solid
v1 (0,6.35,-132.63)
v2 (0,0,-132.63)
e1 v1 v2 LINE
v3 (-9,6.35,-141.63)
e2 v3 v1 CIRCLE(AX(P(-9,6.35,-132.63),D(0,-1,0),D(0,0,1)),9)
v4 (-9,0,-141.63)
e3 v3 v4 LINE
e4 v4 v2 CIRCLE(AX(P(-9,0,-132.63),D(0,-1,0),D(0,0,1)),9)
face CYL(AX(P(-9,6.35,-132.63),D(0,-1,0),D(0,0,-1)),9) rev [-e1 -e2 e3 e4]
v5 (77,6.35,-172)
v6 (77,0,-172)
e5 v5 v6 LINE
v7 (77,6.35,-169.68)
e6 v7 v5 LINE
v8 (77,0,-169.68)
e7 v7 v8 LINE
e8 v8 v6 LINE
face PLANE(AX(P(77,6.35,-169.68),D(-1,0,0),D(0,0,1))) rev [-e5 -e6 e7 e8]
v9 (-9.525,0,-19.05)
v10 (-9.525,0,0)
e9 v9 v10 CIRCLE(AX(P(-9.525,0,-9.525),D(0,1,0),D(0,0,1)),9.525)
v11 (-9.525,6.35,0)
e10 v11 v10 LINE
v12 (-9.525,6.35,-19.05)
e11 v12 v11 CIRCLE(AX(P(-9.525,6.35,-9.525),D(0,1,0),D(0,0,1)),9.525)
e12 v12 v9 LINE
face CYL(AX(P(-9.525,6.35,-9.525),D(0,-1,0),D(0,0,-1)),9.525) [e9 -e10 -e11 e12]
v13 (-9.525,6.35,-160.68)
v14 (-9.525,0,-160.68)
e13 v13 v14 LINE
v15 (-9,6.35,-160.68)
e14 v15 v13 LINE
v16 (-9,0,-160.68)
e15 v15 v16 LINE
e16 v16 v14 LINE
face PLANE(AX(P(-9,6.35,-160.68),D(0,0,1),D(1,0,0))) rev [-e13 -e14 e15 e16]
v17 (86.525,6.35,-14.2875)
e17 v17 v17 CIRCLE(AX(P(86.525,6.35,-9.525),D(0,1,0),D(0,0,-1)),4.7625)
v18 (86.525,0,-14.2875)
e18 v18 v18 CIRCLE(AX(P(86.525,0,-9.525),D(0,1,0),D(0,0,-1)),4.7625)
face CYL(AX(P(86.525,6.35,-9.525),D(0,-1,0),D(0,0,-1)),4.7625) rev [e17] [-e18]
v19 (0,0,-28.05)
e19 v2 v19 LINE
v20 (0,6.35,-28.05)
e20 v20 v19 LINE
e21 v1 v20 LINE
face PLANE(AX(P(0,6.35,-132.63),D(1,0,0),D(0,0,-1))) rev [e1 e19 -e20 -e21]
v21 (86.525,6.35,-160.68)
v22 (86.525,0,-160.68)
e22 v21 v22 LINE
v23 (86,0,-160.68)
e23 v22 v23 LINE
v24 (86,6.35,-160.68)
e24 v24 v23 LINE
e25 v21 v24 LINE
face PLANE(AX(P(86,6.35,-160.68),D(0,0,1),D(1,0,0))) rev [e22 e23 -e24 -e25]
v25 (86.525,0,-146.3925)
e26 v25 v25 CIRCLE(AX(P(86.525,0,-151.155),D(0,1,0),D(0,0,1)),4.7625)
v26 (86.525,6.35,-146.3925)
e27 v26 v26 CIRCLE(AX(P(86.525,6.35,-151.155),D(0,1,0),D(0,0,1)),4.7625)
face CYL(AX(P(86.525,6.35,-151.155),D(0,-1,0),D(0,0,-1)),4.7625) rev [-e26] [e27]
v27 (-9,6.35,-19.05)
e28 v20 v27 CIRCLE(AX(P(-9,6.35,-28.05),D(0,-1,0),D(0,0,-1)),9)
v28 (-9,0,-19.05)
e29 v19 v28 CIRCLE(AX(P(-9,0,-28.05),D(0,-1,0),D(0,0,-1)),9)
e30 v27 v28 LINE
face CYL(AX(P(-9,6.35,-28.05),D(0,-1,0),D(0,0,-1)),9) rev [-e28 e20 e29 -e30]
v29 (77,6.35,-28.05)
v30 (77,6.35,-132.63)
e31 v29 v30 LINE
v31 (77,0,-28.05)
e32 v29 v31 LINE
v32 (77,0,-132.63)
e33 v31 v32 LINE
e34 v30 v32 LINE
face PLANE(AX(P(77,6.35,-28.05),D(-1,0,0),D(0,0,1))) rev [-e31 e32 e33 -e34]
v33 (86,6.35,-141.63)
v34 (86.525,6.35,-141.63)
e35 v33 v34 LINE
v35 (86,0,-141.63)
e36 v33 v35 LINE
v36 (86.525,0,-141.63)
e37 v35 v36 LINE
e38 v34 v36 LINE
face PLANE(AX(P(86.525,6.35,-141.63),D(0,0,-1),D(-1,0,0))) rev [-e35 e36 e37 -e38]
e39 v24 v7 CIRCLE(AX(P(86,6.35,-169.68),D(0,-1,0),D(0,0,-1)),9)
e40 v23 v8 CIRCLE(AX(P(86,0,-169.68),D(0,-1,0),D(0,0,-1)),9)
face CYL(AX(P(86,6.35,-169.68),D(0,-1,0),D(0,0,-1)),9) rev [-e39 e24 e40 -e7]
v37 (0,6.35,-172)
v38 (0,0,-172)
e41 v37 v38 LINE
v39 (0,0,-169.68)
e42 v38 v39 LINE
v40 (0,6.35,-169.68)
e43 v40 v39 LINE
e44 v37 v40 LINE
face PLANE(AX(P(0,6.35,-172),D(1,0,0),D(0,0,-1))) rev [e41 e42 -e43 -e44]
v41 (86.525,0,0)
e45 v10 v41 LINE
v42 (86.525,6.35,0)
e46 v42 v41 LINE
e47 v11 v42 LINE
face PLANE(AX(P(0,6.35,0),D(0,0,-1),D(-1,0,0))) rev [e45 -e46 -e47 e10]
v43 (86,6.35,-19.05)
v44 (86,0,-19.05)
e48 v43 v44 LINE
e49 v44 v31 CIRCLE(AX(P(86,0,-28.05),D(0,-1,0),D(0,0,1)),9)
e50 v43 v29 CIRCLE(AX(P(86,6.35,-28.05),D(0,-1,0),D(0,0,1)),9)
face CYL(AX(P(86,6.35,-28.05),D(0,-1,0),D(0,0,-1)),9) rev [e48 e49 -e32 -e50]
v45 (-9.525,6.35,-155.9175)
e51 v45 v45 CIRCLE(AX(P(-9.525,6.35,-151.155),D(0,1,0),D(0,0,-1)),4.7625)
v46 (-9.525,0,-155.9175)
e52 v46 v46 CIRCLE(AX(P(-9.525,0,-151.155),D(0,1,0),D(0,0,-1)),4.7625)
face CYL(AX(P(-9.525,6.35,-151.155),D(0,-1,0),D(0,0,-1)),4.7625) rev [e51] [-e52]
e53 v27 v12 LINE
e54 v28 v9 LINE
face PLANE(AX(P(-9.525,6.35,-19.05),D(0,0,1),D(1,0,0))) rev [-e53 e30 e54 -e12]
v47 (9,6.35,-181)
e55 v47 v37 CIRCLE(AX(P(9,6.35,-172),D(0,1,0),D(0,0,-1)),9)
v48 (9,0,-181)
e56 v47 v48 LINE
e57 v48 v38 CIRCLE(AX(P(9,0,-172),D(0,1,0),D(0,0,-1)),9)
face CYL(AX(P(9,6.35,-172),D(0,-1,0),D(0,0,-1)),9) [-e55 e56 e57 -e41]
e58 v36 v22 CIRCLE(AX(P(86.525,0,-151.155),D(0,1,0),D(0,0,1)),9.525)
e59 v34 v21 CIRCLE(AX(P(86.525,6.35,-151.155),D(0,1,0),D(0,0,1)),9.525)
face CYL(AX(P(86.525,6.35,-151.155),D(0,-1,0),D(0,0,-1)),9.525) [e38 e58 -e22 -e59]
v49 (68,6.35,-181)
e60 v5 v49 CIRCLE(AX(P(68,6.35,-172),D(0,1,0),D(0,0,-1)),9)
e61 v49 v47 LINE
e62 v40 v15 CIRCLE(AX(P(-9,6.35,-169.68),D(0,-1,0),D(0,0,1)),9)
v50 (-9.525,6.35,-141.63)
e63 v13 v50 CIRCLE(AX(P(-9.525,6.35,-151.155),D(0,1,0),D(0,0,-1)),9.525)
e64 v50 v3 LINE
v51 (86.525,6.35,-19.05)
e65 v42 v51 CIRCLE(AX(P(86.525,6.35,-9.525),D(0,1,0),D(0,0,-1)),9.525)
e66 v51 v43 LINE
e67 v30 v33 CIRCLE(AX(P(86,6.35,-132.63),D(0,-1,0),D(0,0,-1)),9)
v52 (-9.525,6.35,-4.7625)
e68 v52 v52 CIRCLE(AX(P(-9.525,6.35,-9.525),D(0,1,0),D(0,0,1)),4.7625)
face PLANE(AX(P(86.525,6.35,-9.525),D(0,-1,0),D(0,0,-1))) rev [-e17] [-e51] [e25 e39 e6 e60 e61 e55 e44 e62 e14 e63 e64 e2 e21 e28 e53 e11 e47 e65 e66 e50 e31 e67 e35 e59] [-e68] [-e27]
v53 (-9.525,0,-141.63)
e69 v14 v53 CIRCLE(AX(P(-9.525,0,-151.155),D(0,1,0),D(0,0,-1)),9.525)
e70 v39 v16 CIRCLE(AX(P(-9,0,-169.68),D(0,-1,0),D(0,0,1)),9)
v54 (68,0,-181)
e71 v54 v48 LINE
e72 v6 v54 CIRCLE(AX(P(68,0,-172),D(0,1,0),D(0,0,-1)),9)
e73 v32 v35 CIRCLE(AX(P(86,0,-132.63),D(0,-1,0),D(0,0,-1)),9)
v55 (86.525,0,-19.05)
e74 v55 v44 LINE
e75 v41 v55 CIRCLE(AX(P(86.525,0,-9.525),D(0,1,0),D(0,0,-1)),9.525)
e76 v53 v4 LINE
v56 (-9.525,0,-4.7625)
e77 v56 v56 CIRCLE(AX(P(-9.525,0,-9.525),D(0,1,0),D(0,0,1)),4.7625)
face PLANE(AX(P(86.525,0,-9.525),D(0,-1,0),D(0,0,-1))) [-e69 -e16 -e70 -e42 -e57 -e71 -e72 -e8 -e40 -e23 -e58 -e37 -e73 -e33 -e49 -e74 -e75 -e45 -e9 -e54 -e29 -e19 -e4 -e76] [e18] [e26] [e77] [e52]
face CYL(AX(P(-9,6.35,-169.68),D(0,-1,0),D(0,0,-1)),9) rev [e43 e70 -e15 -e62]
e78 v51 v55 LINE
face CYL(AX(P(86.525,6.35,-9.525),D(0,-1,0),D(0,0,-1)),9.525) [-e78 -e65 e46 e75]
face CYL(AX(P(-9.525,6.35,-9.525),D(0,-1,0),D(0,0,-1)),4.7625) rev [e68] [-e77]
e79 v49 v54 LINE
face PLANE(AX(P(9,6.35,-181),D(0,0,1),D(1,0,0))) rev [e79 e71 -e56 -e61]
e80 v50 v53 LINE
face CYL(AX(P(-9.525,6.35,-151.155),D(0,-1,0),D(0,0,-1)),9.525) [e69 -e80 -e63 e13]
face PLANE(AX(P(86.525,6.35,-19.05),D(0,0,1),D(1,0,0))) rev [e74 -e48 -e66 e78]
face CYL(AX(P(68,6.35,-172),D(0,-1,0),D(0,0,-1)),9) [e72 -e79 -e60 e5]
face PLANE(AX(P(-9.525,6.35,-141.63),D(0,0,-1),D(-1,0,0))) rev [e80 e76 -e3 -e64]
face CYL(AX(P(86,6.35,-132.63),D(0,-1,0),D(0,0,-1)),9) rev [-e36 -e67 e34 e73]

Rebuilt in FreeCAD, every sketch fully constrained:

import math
import FreeCAD as App
import Part
import Sketcher
Q = App.Units.Quantity

doc = App.newDocument("Part")
params = doc.addObject("Spreadsheet::Sheet", "Params")
for row, (alias, value) in enumerate([
    ("sketch1_diameter", "0.375 in"),
    ("sketch1_radius", "0.375 in"),
    ("pad1_length", "0.25 in"),
], start=1):
    params.set(f"A{row}", alias)
    params.set(f"B{row}", "=" + value)
    params.setAlias(f"B{row}", alias)

body = doc.addObject("PartDesign::Body", "Body")

sketch1 = body.newObject("Sketcher::SketchObject", "Sketch")
sketch1.AttachmentSupport = (doc.getObject("XZ_Plane"), [""])
sketch1.MapMode = "FlatFace"
sketch1.addGeometry(Part.LineSegment(App.Vector(0, -132.63, 0), App.Vector(0, -28.05, 0)), False)
sketch1.addGeometry(Part.ArcOfCircle(Part.Circle(App.Vector(-9, -28.05, 0), App.Vector(0, 0, 1), 9), math.radians(0), math.radians(90)), False)
sketch1.addGeometry(Part.LineSegment(App.Vector(-9, -19.05, 0), App.Vector(-9.525, -19.05, 0)), False)
sketch1.addGeometry(Part.ArcOfCircle(Part.Circle(App.Vector(-9.525, -9.525, 0), App.Vector(0, 0, 1), 9.525), math.radians(90), math.radians(270)), False)
sketch1.addGeometry(Part.LineSegment(App.Vector(-9.525, 0, 0), App.Vector(86.525, 0, 0)), False)
sketch1.addGeometry(Part.ArcOfCircle(Part.Circle(App.Vector(86.525, -9.525, 0), App.Vector(0, 0, 1), 9.525), math.radians(-90), math.radians(90)), False)
sketch1.addGeometry(Part.LineSegment(App.Vector(86.525, -19.05, 0), App.Vector(86, -19.05, 0)), False)
sketch1.addGeometry(Part.ArcOfCircle(Part.Circle(App.Vector(86, -28.05, 0), App.Vector(0, 0, 1), 9), math.radians(90), math.radians(180)), False)
sketch1.addGeometry(Part.LineSegment(App.Vector(77, -28.05, 0), App.Vector(77, -132.63, 0)), False)
sketch1.addGeometry(Part.ArcOfCircle(Part.Circle(App.Vector(86, -132.63, 0), App.Vector(0, 0, 1), 9), math.radians(180), math.radians(270)), False)
sketch1.addGeometry(Part.LineSegment(App.Vector(86, -141.63, 0), App.Vector(86.525, -141.63, 0)), False)
sketch1.addGeometry(Part.ArcOfCircle(Part.Circle(App.Vector(86.525, -151.155, 0), App.Vector(0, 0, 1), 9.525), math.radians(-90), math.radians(90)), False)
sketch1.addGeometry(Part.LineSegment(App.Vector(86.525, -160.68, 0), App.Vector(86, -160.68, 0)), False)
sketch1.addGeometry(Part.ArcOfCircle(Part.Circle(App.Vector(86, -169.68, 0), App.Vector(0, 0, 1), 9), math.radians(90), math.radians(180)), False)
sketch1.addGeometry(Part.LineSegment(App.Vector(77, -169.68, 0), App.Vector(77, -172, 0)), False)
sketch1.addGeometry(Part.ArcOfCircle(Part.Circle(App.Vector(68, -172, 0), App.Vector(0, 0, 1), 9), math.radians(-90), math.radians(0)), False)
sketch1.addGeometry(Part.LineSegment(App.Vector(68, -181, 0), App.Vector(9, -181, 0)), False)
sketch1.addGeometry(Part.ArcOfCircle(Part.Circle(App.Vector(9, -172, 0), App.Vector(0, 0, 1), 9), math.radians(180), math.radians(270)), False)
sketch1.addGeometry(Part.LineSegment(App.Vector(0, -172, 0), App.Vector(0, -169.68, 0)), False)
sketch1.addGeometry(Part.ArcOfCircle(Part.Circle(App.Vector(-9, -169.68, 0), App.Vector(0, 0, 1), 9), math.radians(0), math.radians(90)), False)
sketch1.addGeometry(Part.LineSegment(App.Vector(-9, -160.68, 0), App.Vector(-9.525, -160.68, 0)), False)
sketch1.addGeometry(Part.ArcOfCircle(Part.Circle(App.Vector(-9.525, -151.155, 0), App.Vector(0, 0, 1), 9.525), math.radians(90), math.radians(270)), False)
sketch1.addGeometry(Part.LineSegment(App.Vector(-9.525, -141.63, 0), App.Vector(-9, -141.63, 0)), False)
sketch1.addGeometry(Part.ArcOfCircle(Part.Circle(App.Vector(-9, -132.63, 0), App.Vector(0, 0, 1), 9), math.radians(-90), math.radians(0)), False)
sketch1.addGeometry(Part.Circle(App.Vector(-9.525, -9.525, 0), App.Vector(0, 0, 1), 4.7625), False)
sketch1.addGeometry(Part.Circle(App.Vector(86.525, -9.525, 0), App.Vector(0, 0, 1), 4.7625), False)
sketch1.addGeometry(Part.Circle(App.Vector(-9.525, -151.155, 0), App.Vector(0, 0, 1), 4.7625), False)
sketch1.addGeometry(Part.Circle(App.Vector(86.525, -151.155, 0), App.Vector(0, 0, 1), 4.7625), False)
sketch1.addConstraint(Sketcher.Constraint("Tangent", 0, 2, 1, 1))
sketch1.addConstraint(Sketcher.Constraint("Tangent", 1, 2, 2, 1))
sketch1.addConstraint(Sketcher.Constraint("Tangent", 2, 2, 3, 2))
sketch1.addConstraint(Sketcher.Constraint("Tangent", 3, 1, 4, 1))
sketch1.addConstraint(Sketcher.Constraint("Tangent", 4, 2, 5, 2))
sketch1.addConstraint(Sketcher.Constraint("Tangent", 5, 1, 6, 1))
sketch1.addConstraint(Sketcher.Constraint("Tangent", 6, 2, 7, 1))
sketch1.addConstraint(Sketcher.Constraint("Tangent", 7, 2, 8, 1))
sketch1.addConstraint(Sketcher.Constraint("Tangent", 8, 2, 9, 1))
sketch1.addConstraint(Sketcher.Constraint("Tangent", 9, 2, 10, 1))
sketch1.addConstraint(Sketcher.Constraint("Tangent", 10, 2, 11, 2))
sketch1.addConstraint(Sketcher.Constraint("Tangent", 11, 1, 12, 1))
sketch1.addConstraint(Sketcher.Constraint("Tangent", 12, 2, 13, 1))
sketch1.addConstraint(Sketcher.Constraint("Tangent", 13, 2, 14, 1))
sketch1.addConstraint(Sketcher.Constraint("Tangent", 14, 2, 15, 2))
sketch1.addConstraint(Sketcher.Constraint("Tangent", 15, 1, 16, 1))
sketch1.addConstraint(Sketcher.Constraint("Tangent", 16, 2, 17, 2))
sketch1.addConstraint(Sketcher.Constraint("Tangent", 17, 1, 18, 1))
sketch1.addConstraint(Sketcher.Constraint("Tangent", 18, 2, 19, 1))
sketch1.addConstraint(Sketcher.Constraint("Tangent", 19, 2, 20, 1))
sketch1.addConstraint(Sketcher.Constraint("Tangent", 20, 2, 21, 2))
sketch1.addConstraint(Sketcher.Constraint("Tangent", 21, 1, 22, 1))
sketch1.addConstraint(Sketcher.Constraint("Tangent", 22, 2, 23, 1))
sketch1.addConstraint(Sketcher.Constraint("Tangent", 23, 2, 0, 1))
sketch1.addConstraint(Sketcher.Constraint("Vertical", 0))
sketch1.addConstraint(Sketcher.Constraint("Horizontal", 2))
sketch1.addConstraint(Sketcher.Constraint("Horizontal", 4))
sketch1.addConstraint(Sketcher.Constraint("Horizontal", 6))
sketch1.addConstraint(Sketcher.Constraint("Vertical", 8))
sketch1.addConstraint(Sketcher.Constraint("Horizontal", 10))
sketch1.addConstraint(Sketcher.Constraint("Horizontal", 12))
sketch1.addConstraint(Sketcher.Constraint("Vertical", 14))
sketch1.addConstraint(Sketcher.Constraint("Horizontal", 16))
sketch1.addConstraint(Sketcher.Constraint("Vertical", 18))
sketch1.addConstraint(Sketcher.Constraint("Horizontal", 20))
sketch1.addConstraint(Sketcher.Constraint("Horizontal", 22))
sketch1.addConstraint(Sketcher.Constraint("Coincident", 24, 3, 3, 3))
sketch1.addConstraint(Sketcher.Constraint("Coincident", 25, 3, 5, 3))
sketch1.addConstraint(Sketcher.Constraint("Coincident", 26, 3, 21, 3))
sketch1.addConstraint(Sketcher.Constraint("Coincident", 27, 3, 11, 3))
sketch1.addConstraint(Sketcher.Constraint("Equal", 3, 5))
sketch1.addConstraint(Sketcher.Constraint("Equal", 1, 7))
sketch1.addConstraint(Sketcher.Constraint("Equal", 7, 9))
sketch1.addConstraint(Sketcher.Constraint("Equal", 5, 11))
sketch1.addConstraint(Sketcher.Constraint("Equal", 9, 13))
sketch1.addConstraint(Sketcher.Constraint("Equal", 13, 15))
sketch1.addConstraint(Sketcher.Constraint("Equal", 15, 17))
sketch1.addConstraint(Sketcher.Constraint("Equal", 17, 19))
sketch1.addConstraint(Sketcher.Constraint("Equal", 11, 21))
sketch1.addConstraint(Sketcher.Constraint("Equal", 19, 23))
sketch1.addConstraint(Sketcher.Constraint("Equal", 24, 25))
sketch1.addConstraint(Sketcher.Constraint("Equal", 25, 26))
sketch1.addConstraint(Sketcher.Constraint("Equal", 26, 27))
sketch1.addConstraint(Sketcher.Constraint("PointOnObject", 0, 2, -2))
sketch1.addConstraint(Sketcher.Constraint("PointOnObject", 3, 1, -1))
sketch1.addConstraint(Sketcher.Constraint("PointOnObject", 17, 1, -2))
sketch1.addConstraint(Sketcher.Constraint("Horizontal", 13, 3, 19, 3))
sketch1.addConstraint(Sketcher.Constraint("Vertical", 5, 3, 11, 3))
sketch1.addConstraint(Sketcher.Constraint("Vertical", 9, 3, 13, 3))
sketch1.addConstraint(Sketcher.Constraint("Vertical", 3, 3, 21, 3))
sketch1.addConstraint(Sketcher.Constraint("Equal", 2, 6))
sketch1.addConstraint(Sketcher.Constraint("Diameter", 24, Q("0.375 in")))
sketch1.addConstraint(Sketcher.Constraint("Radius", 3, Q("0.375 in")))
sketch1.addConstraint(Sketcher.Constraint("DistanceY", 15, 1, 12, 2, Q("0.8 in")))
sketch1.addConstraint(Sketcher.Constraint("Radius", 1, 9.0))
sketch1.addConstraint(Sketcher.Constraint("DistanceX", 3, 3, -1, 1, Q("0.375 in")))
sketch1.addConstraint(Sketcher.Constraint("DistanceX", 4, 1, 4, 2, 96.05))
sketch1.addConstraint(Sketcher.Constraint("DistanceY", 0, 1, 0, 2, 104.58))
sketch1.setExpression("Constraints[61]", "Params.sketch1_diameter")
sketch1.setExpression("Constraints[62]", "Params.sketch1_radius")
pad1 = body.newObject("PartDesign::Pad", "Pad")
pad1.Profile = sketch1
pad1.setExpression("Length", "Params.pad1_length")
pad1.Reversed = True

doc.recompute()
